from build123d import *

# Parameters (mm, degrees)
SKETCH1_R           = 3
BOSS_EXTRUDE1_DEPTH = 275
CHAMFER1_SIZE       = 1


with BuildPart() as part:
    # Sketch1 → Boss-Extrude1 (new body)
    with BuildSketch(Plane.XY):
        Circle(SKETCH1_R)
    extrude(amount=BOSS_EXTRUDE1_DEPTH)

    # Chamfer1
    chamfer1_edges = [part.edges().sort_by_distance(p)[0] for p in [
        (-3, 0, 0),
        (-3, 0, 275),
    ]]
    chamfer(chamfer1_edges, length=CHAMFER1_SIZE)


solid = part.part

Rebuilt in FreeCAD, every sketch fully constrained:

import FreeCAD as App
import Part
import Sketcher

V = App.Vector


def edges_at(feature, points):
    """Names of the edges that pass closest to the given points."""
    edges = feature.Shape.Edges
    near = lambda p: min(range(len(edges)), key=lambda i: edges[i].distToShape(Part.Vertex(*p))[0])
    return sorted({f"Edge{near(p) + 1}" for p in points})

doc = App.newDocument("Part")
params = doc.addObject("Spreadsheet::Sheet", "Params")
for row, (alias, value) in enumerate([
    ("sketch1_diameter", "6 mm"),
    ("pad1_length", "275 mm"),
    ("chamfer_size", "1 mm"),
], start=1):
    params.set(f"A{row}", alias)
    params.set(f"B{row}", "=" + value)
    params.setAlias(f"B{row}", alias)

body = doc.addObject("PartDesign::Body", "Body")

# Sketch on XY plane
sketch1 = body.newObject("Sketcher::SketchObject", "Sketch")
sketch1.AttachmentSupport = (doc.getObject("XY_Plane"), [""])
sketch1.MapMode = "FlatFace"
sketch1.addGeometry(Part.Circle(V(0, 0, 0), V(0, 0, 1), 3), False)
sketch1.addConstraint(Sketcher.Constraint("Coincident", 0, 3, -1, 1))
sketch1.addConstraint(Sketcher.Constraint("Diameter", 0, 6.0))
sketch1.setExpression("Constraints[1]", "Params.sketch1_diameter")
pad1 = body.newObject("PartDesign::Pad", "Pad")
pad1.Profile = sketch1
pad1.setExpression("Length", "Params.pad1_length")
doc.recompute()

chamfer = body.newObject("PartDesign::Chamfer", "Chamfer")
chamfer.Base = (pad1, edges_at(pad1, [(-3, 0, 0), (-3, 0, 275)]))
chamfer.setExpression("Size", "Params.chamfer_size")

doc.recompute()
